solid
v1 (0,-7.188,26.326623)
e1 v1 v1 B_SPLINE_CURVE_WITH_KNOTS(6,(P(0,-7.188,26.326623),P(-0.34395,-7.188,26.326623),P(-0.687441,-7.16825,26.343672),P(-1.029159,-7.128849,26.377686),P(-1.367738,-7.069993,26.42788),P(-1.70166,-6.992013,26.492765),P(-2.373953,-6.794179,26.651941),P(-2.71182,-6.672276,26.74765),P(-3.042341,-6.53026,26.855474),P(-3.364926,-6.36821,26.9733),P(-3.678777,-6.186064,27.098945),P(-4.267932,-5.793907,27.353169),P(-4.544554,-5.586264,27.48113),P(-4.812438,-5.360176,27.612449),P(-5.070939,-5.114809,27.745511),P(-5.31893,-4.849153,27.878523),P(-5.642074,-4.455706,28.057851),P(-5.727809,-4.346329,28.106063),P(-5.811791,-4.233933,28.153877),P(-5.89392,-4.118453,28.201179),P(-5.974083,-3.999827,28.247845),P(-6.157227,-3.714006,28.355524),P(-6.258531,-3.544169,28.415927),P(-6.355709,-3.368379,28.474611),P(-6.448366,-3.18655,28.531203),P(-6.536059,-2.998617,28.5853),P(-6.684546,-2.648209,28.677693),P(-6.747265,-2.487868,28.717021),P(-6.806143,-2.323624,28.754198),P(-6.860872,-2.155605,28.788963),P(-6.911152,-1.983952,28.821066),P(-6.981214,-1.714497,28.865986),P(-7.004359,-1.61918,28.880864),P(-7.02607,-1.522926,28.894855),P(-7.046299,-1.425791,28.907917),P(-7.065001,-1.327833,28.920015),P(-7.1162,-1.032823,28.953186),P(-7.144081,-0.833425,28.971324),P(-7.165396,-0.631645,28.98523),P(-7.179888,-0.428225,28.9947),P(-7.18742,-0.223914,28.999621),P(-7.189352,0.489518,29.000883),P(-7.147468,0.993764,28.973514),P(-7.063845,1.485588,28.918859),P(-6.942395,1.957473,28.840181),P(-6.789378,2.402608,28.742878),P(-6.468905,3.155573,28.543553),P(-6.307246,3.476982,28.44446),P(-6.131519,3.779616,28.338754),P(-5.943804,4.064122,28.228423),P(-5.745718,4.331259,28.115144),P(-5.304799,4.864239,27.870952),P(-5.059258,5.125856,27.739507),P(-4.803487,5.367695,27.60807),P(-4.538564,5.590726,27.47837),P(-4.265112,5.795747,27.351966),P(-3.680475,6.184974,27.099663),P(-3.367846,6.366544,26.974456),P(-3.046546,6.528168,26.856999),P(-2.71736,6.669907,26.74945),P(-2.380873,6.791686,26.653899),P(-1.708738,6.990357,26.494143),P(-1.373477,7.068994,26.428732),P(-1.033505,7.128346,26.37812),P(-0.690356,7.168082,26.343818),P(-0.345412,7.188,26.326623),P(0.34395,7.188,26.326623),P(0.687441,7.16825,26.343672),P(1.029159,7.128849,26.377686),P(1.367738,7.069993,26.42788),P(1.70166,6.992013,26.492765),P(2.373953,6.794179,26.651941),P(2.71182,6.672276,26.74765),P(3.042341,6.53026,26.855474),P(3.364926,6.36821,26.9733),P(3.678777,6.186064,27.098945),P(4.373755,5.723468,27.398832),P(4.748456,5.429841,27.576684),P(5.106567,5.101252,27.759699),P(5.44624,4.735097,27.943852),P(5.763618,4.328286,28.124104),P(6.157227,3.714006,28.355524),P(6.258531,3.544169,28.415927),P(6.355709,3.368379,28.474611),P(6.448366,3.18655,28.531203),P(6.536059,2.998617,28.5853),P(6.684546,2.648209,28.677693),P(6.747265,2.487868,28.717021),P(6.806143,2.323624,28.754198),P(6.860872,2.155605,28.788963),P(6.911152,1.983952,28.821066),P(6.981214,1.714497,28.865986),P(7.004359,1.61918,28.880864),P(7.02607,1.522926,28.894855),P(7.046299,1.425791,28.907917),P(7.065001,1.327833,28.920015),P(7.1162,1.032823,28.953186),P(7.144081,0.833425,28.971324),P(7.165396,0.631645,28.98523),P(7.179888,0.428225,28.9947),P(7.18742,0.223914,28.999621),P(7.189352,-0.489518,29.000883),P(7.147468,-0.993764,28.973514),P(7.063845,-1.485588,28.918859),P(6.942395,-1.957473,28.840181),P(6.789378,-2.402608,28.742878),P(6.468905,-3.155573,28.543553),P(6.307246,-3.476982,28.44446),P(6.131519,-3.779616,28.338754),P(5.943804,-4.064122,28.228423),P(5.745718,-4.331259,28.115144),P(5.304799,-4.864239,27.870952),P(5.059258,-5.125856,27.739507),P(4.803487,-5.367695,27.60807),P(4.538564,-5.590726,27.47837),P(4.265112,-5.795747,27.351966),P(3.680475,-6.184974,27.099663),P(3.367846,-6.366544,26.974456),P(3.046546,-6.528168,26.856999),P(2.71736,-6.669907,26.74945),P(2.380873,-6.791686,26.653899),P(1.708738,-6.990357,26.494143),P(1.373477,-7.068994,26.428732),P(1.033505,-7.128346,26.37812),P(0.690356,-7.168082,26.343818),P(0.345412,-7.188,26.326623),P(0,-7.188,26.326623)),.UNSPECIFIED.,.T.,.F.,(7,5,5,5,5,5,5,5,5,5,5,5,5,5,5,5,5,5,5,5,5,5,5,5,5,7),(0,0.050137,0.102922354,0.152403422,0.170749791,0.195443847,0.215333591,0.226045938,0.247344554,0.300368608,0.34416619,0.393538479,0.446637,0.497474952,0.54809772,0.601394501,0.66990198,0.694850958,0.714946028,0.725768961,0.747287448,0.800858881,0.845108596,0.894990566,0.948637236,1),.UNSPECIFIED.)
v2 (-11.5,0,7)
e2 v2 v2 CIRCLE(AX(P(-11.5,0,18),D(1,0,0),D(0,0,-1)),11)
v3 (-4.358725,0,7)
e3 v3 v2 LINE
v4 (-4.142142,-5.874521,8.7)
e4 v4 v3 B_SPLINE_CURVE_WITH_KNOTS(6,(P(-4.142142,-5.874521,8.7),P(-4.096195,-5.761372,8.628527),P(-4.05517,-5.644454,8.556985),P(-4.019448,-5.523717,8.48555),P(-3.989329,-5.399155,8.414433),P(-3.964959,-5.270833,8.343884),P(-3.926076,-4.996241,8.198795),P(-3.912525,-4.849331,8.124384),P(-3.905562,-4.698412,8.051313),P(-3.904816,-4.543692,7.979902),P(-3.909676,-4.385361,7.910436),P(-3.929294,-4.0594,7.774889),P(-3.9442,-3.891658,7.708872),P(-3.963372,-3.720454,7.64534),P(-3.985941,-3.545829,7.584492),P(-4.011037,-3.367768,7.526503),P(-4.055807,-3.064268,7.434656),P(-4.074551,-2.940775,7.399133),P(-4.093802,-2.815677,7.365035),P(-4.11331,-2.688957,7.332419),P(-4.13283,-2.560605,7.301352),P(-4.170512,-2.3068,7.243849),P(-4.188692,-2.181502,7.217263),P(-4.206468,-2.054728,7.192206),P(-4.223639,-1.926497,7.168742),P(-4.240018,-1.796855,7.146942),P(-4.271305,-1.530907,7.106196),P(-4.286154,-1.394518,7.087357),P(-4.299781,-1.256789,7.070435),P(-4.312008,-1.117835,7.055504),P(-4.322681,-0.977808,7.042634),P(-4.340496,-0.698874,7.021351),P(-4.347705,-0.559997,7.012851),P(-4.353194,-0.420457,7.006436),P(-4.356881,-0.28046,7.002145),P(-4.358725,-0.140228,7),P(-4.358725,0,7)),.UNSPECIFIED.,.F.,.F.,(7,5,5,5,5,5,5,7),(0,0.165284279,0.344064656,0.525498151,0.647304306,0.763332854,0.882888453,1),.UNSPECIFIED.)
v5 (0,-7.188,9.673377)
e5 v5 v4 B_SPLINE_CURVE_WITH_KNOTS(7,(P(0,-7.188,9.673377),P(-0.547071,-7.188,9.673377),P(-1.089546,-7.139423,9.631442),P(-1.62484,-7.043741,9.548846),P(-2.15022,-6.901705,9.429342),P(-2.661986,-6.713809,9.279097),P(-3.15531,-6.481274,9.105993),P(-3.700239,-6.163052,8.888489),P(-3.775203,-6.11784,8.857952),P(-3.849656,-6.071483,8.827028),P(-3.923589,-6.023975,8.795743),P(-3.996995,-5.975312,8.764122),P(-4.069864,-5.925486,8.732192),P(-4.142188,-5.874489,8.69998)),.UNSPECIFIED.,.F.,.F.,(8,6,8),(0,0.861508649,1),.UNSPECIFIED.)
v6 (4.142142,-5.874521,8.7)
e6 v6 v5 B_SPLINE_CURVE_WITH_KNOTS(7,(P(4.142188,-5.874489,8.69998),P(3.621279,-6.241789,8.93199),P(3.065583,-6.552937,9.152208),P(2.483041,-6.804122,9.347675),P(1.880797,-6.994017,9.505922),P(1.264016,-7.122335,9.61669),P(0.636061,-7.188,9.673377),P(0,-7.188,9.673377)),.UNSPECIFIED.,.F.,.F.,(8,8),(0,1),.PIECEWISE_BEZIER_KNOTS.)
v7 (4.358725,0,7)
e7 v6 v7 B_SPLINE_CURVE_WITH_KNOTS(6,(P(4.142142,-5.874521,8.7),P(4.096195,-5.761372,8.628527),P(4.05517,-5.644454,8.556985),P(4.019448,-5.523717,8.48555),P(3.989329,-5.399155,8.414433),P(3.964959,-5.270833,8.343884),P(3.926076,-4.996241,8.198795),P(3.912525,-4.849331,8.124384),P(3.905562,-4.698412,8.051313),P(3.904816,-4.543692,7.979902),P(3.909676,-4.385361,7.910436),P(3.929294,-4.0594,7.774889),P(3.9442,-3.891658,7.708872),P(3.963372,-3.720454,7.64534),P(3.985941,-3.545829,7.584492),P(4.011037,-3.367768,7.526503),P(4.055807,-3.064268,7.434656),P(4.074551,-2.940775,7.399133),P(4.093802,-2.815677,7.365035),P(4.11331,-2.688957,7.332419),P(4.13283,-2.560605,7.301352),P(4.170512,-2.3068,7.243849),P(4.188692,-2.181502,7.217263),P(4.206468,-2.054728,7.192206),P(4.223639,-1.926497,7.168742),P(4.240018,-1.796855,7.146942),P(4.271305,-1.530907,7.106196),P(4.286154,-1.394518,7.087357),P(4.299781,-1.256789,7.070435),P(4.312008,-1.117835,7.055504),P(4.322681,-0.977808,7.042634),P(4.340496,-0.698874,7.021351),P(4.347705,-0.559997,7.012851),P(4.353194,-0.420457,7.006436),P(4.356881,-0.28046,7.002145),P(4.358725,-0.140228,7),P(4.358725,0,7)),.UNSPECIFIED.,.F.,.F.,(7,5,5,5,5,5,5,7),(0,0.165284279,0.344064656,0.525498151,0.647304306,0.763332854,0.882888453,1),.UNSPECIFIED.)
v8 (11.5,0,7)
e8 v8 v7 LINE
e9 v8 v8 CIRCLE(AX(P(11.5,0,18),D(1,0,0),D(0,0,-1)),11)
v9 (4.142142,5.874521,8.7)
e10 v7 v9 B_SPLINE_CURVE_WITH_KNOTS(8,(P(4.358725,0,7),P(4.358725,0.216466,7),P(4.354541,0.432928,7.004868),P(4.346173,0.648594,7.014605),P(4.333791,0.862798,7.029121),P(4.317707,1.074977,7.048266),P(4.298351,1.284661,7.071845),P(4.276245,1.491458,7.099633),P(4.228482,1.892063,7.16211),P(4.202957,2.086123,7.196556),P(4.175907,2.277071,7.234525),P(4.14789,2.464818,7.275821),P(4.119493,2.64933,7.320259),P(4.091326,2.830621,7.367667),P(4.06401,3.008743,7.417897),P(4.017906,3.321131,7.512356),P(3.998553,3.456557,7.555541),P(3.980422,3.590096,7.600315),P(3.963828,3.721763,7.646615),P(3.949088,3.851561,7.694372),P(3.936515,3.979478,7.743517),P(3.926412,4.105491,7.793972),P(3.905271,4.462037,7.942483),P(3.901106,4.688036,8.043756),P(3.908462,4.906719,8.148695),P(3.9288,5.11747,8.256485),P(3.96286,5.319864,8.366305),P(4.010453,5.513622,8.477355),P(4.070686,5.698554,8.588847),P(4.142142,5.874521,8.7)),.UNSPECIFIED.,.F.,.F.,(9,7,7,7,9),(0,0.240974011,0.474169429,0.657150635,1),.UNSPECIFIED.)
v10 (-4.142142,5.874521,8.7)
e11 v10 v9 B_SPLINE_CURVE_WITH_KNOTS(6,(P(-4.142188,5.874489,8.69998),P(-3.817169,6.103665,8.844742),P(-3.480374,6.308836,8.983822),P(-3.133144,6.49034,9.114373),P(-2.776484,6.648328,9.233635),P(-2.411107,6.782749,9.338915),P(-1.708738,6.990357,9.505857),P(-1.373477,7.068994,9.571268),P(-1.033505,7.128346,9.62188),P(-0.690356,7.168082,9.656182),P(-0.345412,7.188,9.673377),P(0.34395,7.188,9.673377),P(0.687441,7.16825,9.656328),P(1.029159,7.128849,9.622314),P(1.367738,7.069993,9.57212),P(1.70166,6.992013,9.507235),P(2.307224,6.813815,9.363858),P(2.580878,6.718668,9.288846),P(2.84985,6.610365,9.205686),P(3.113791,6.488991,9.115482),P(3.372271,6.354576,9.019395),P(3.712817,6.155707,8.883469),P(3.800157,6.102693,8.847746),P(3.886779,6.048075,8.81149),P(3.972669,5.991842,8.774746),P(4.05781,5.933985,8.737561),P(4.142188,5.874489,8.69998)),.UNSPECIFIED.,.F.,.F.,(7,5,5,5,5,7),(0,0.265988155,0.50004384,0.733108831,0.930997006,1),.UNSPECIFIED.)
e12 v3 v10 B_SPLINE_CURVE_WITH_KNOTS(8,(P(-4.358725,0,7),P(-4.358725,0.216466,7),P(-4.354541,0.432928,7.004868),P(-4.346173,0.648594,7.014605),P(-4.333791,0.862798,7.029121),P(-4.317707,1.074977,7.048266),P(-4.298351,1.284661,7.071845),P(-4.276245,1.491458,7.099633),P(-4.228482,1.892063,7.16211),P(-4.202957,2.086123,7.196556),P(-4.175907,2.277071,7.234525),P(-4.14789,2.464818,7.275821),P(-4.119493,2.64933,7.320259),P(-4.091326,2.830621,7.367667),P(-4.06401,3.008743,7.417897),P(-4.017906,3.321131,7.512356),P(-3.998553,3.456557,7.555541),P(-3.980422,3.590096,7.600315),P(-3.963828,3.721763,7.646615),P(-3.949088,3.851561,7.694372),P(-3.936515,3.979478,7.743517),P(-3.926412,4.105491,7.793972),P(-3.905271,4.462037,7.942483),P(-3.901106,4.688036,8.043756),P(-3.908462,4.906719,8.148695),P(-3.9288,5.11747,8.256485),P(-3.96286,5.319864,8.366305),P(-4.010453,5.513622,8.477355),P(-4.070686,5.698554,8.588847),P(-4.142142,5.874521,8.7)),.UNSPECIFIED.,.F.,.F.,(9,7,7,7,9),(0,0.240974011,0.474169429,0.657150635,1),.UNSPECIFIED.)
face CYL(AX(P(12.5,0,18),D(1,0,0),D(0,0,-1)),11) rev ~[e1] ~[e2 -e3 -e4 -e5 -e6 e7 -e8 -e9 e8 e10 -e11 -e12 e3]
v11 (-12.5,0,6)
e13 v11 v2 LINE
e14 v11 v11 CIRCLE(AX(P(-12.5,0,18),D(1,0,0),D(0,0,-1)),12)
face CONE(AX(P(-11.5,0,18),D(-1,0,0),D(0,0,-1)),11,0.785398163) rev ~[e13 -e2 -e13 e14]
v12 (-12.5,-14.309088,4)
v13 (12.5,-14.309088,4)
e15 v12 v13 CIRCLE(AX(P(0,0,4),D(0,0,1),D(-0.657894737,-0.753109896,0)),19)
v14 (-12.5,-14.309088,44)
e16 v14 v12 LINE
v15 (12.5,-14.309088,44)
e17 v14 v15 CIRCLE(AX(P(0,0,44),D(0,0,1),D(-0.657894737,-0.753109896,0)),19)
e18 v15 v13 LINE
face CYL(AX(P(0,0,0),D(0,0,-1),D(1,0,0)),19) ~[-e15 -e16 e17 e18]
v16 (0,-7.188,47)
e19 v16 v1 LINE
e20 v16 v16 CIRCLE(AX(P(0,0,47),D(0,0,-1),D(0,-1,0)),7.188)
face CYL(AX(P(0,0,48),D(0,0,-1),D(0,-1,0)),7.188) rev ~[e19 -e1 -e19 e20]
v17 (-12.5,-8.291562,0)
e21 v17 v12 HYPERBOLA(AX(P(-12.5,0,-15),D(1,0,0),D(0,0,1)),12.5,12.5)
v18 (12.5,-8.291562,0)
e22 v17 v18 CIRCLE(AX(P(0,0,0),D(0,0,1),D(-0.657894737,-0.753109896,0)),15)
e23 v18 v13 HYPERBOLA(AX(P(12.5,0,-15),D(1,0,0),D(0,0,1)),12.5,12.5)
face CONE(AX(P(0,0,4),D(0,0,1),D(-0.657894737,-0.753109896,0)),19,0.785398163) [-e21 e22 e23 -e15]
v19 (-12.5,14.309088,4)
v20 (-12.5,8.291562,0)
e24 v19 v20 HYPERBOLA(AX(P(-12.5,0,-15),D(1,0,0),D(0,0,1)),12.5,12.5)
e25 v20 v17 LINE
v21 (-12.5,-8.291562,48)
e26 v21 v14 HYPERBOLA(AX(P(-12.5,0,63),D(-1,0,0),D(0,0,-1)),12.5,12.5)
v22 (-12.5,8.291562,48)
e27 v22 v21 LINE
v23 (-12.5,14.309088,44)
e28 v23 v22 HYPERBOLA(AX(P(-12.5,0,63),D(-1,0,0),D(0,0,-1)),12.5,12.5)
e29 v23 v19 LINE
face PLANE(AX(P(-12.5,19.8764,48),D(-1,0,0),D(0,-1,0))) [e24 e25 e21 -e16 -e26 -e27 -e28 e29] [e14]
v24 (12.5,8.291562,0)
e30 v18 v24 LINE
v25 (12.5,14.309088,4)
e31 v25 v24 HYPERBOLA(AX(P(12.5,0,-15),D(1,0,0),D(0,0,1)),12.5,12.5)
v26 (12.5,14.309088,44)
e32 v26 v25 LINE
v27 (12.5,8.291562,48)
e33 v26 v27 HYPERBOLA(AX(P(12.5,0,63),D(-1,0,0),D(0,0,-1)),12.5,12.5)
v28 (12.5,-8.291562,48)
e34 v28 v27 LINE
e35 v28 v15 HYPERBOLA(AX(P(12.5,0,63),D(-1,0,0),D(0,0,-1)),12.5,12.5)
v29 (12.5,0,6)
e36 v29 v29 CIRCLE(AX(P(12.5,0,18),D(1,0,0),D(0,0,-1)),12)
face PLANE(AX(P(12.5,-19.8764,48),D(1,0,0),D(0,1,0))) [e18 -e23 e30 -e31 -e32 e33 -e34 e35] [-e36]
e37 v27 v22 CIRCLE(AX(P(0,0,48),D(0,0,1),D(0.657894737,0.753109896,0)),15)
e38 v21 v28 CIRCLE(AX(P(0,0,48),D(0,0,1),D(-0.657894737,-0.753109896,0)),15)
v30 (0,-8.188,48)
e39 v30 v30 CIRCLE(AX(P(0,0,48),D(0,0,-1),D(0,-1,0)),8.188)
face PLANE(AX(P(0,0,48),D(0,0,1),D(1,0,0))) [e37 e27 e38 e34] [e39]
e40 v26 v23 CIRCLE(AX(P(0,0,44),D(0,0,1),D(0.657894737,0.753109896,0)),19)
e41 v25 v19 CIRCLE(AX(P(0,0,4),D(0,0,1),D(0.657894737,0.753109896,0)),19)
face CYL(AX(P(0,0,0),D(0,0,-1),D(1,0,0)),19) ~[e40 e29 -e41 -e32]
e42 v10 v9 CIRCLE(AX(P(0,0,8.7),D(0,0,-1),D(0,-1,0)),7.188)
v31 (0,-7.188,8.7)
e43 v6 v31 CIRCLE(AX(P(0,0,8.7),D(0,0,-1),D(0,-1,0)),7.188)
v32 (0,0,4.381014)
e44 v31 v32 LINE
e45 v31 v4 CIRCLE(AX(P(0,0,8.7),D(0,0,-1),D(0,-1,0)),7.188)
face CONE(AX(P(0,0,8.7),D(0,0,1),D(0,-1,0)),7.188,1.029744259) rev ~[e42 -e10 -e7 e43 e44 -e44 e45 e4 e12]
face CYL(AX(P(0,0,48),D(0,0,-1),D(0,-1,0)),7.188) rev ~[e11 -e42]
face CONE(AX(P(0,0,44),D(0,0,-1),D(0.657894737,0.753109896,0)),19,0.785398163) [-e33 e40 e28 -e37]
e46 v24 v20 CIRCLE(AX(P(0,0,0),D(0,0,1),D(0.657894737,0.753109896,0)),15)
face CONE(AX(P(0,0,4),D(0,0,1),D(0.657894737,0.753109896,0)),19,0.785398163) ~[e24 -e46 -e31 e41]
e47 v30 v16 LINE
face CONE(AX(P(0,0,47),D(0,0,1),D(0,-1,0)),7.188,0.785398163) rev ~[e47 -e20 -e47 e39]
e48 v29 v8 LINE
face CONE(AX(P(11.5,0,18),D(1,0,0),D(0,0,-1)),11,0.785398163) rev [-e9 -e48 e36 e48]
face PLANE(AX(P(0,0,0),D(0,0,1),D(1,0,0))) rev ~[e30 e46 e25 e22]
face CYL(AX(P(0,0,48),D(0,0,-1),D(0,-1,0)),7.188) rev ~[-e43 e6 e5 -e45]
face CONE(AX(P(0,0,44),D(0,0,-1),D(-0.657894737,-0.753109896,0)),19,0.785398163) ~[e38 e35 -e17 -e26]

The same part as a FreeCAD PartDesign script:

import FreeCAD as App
import Part
import Sketcher
from FreeCAD import Vector
Q = App.Units.Quantity


def edges_at(feature, points):
    """Names of the edges that pass closest to the given points."""
    edges = feature.Shape.Edges
    near = lambda p: min(range(len(edges)), key=lambda i: edges[i].distToShape(Part.Vertex(*p))[0])
    return sorted({f"Edge{near(p) + 1}" for p in points})


def add_polygon(sketch, points):
    """Adds a closed chain of lines whose ends are joined by coincident constraints."""
    first, n = sketch.GeometryCount, len(points)
    for a, b in zip(points, points[1:] + points[:1]):
        sketch.addGeometry(Part.LineSegment(App.Vector(*a, 0), App.Vector(*b, 0)), False)
    for i in range(n):
        sketch.addConstraint(Sketcher.Constraint("Coincident", first + i, 2, first + (i + 1) % n, 1))

doc = App.newDocument("Part")
body = doc.addObject("PartDesign::Body", "Body")

# Sketch on XY plane
sketch1 = doc.addObject("Sketcher::SketchObject", "Sketch")
body.addObject(sketch1)
sketch1.AttachmentSupport = (doc.XY_Plane, [""])
sketch1.MapMode = "FlatFace"
sketch1.addGeometry(Part.Circle(Vector(0, 0, 0), Vector(0, 0, 1), 19), False)
sketch1.addConstraint([
    Sketcher.Constraint("Coincident", 0, 3, -1, 1),
    Sketcher.Constraint("Diameter", 0, Q("38 mm")),
])
pad1 = doc.addObject("PartDesign::Pad", "Pad")
body.addObject(pad1)
pad1.Profile = sketch1
pad1.Length = 48

# Sketch on XY plane
sketch2 = doc.addObject("Sketcher::SketchObject", "Sketch001")
body.addObject(sketch2)
sketch2.AttachmentSupport = (doc.XY_Plane, [""])
sketch2.MapMode = "FlatFace"
sketch2.AttachmentOffset = App.Placement(Vector(0, 0, 48), App.Rotation())
add_polygon(sketch2, [(30.6636, 21.9531), (12.5, 21.9531), (12.5, -19.8764), (30.6636, -19.8764)])  # lines 0-3
sketch2.addConstraint([
    Sketcher.Constraint("Horizontal", 0),
    Sketcher.Constraint("Vertical", 1),
    Sketcher.Constraint("Horizontal", 2),
    Sketcher.Constraint("Vertical", 3),
    Sketcher.Constraint("DistanceX", -1, 1, 0, 2, Q("12.5 mm")),
    Sketcher.Constraint("DistanceX", 0, 2, 0, 1, Q("18.1636 mm")),
    Sketcher.Constraint("DistanceY", 1, 2, 1, 1, Q("41.8295 mm")),
    Sketcher.Constraint("DistanceY", -1, 1, 0, 2, Q("21.953 mm")),
])
pocket1 = doc.addObject("PartDesign::Pocket", "Pocket")
body.addObject(pocket1)
pocket1.Profile = sketch2
pocket1.Type = "ThroughAll"
doc.recompute()

polarpattern = doc.addObject("PartDesign::PolarPattern", "PolarPattern")
body.addObject(polarpattern)
polarpattern.Originals = [pocket1]
polarpattern.Axis = (doc.Z_Axis, [""])
polarpattern.Angle = 360
polarpattern.Occurrences = 2
body.Tip = polarpattern

# Sketch on YZ plane
sketch3 = doc.addObject("Sketcher::SketchObject", "Sketch002")
body.addObject(sketch3)
sketch3.AttachmentSupport = (doc.YZ_Plane, [""])
sketch3.MapMode = "FlatFace"
sketch3.AttachmentOffset = App.Placement(Vector(0, 0, 12.5), App.Rotation())
sketch3.addGeometry(Part.Circle(Vector(0, 18, 0), Vector(0, 0, 1), 11), False)
sketch3.addConstraint([
    Sketcher.Constraint("PointOnObject", 0, 3, -2),
    Sketcher.Constraint("Diameter", 0, Q("22 mm")),
    Sketcher.Constraint("DistanceY", -1, 1, 0, 3, Q("18 mm")),
])
pocket2 = doc.addObject("PartDesign::Pocket", "Pocket001")
body.addObject(pocket2)
pocket2.Profile = sketch3
pocket2.Type = "ThroughAll"

# Sketch on XY plane
sketch4 = doc.addObject("Sketcher::SketchObject", "Sketch003")
body.addObject(sketch4)
sketch4.AttachmentSupport = (doc.XY_Plane, [""])
sketch4.MapMode = "FlatFace"
sketch4.AttachmentOffset = App.Placement(Vector(0, 0, 48), App.Rotation())
sketch4.addGeometry(Part.Circle(Vector(0, 0, 0), Vector(0, 0, 1), 7.188), False)
sketch4.addConstraint([
    Sketcher.Constraint("Coincident", 0, 3, -1, 1),
    Sketcher.Constraint("Diameter", 0, Q("14.376 mm")),
])
doc.recompute()
hole = doc.addObject("PartDesign::Hole", "Hole")
body.addObject(hole)
hole.Profile = sketch4
hole.ThreadType = "None"
hole.Diameter = 14.376
hole.DepthType = "Dimension"
hole.Depth = 39.3
hole.DrillPoint = "Angled"
hole.DrillPointAngle = 118
doc.recompute()

chamfer = doc.addObject("PartDesign::Chamfer", "Chamfer")
body.addObject(chamfer)
chamfer.Base = (hole, edges_at(hole, [
    (0, 19, 0),
    (0, -19, 0),
    (0, 19, 48),
    (0, -19, 48),
]))
chamfer.Size = 4
doc.recompute()

chamfer2 = doc.addObject("PartDesign::Chamfer", "Chamfer001")
body.addObject(chamfer2)
chamfer2.Base = (chamfer, edges_at(chamfer, [(0, 7.188, 48)]))
chamfer2.Size = 1
doc.recompute()

chamfer3 = doc.addObject("PartDesign::Chamfer", "Chamfer002")
body.addObject(chamfer3)
chamfer3.Base = (chamfer2, edges_at(chamfer2, [(12.5, 0, 29), (-12.5, 0, 29)]))
chamfer3.Size = 1

doc.recompute()
